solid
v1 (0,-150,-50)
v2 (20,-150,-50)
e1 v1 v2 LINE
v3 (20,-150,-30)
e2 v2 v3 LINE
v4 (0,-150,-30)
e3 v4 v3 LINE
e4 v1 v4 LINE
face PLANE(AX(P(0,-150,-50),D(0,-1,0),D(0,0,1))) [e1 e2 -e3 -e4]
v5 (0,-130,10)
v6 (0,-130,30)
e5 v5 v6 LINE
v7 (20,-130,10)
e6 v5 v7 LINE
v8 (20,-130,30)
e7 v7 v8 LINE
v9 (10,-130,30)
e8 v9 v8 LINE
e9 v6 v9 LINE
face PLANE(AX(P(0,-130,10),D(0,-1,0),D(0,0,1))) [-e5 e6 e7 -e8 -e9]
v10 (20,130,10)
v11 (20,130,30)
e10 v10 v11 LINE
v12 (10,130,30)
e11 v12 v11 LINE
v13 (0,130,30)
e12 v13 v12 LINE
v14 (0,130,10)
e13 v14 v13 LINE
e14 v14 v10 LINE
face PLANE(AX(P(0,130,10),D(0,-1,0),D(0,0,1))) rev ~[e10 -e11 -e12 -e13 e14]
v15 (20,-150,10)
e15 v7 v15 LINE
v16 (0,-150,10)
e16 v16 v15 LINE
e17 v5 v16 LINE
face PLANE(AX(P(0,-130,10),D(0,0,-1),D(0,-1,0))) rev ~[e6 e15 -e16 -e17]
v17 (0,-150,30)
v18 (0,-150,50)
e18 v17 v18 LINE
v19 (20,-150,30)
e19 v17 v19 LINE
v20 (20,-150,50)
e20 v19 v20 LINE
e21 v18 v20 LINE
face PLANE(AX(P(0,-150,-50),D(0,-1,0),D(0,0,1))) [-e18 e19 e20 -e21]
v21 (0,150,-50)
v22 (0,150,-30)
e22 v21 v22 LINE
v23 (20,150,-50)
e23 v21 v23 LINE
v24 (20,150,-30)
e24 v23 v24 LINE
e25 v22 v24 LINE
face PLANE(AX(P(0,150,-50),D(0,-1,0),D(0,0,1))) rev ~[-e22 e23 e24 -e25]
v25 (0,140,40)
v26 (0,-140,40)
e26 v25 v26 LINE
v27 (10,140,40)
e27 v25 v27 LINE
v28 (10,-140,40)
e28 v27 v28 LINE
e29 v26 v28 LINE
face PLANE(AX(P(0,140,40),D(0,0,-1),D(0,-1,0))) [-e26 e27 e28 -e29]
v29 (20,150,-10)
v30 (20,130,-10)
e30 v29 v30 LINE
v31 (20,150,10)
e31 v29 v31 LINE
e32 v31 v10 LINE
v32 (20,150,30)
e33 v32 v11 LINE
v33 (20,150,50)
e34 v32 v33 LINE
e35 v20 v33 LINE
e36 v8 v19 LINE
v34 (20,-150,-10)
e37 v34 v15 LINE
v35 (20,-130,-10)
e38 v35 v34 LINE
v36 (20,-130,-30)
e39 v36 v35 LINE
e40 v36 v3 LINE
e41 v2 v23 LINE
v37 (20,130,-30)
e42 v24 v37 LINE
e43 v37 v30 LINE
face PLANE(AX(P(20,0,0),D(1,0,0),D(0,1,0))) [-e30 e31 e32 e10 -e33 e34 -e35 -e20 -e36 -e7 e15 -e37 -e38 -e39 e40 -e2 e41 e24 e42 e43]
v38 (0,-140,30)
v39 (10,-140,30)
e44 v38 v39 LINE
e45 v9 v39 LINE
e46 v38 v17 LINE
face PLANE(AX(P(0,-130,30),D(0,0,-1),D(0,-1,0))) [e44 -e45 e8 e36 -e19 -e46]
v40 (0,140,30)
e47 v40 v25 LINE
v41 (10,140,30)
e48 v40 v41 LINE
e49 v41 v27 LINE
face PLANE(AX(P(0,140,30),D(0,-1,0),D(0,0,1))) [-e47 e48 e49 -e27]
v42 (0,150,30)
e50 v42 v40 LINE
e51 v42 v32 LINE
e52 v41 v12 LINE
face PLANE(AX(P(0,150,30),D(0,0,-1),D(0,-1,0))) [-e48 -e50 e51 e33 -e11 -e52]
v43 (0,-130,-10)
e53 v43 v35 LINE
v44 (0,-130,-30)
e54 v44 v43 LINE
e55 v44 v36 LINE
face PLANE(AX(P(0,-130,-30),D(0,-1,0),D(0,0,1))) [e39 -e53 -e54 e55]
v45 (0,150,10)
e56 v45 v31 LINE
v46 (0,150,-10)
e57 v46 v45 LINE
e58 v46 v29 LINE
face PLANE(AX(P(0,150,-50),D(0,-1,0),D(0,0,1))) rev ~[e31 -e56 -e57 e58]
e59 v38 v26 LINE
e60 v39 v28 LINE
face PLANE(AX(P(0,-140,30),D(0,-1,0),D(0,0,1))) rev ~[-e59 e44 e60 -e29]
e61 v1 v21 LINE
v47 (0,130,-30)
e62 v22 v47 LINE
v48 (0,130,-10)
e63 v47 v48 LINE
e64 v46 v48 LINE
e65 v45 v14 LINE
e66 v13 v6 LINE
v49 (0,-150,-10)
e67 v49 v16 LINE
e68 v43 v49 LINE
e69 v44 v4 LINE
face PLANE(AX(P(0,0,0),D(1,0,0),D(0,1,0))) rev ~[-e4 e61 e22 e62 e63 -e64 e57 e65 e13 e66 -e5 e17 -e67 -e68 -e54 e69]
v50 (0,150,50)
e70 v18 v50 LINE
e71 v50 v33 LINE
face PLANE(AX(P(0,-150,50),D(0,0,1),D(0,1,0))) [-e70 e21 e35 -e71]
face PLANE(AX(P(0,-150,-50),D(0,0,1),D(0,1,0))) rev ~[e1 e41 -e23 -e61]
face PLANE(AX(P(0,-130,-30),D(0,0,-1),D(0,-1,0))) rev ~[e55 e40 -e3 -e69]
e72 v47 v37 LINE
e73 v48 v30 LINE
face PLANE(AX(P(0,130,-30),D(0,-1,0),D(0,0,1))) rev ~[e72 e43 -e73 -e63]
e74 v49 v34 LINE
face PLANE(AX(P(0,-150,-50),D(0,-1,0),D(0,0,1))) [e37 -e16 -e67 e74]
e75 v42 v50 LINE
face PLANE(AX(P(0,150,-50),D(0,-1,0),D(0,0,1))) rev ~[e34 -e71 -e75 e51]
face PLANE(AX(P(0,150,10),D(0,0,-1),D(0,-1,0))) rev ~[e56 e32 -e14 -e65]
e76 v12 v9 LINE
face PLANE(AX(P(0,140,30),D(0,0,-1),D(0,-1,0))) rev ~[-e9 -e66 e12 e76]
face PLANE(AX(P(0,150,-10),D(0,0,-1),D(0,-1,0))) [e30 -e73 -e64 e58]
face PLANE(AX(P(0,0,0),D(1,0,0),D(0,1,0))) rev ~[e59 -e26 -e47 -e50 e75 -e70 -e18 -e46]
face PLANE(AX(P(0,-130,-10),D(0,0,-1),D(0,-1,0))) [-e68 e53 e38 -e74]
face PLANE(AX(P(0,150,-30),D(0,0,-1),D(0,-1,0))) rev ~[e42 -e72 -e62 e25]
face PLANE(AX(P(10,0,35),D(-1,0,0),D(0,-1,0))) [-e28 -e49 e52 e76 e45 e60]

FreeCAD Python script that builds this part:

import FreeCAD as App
import Part
import Sketcher
from FreeCAD import Vector
Q = App.Units.Quantity

doc = App.newDocument("Part")
body = doc.addObject("PartDesign::Body", "Body")

# Sketch on YZ plane
sketch1 = body.newObject("Sketcher::SketchObject", "Sketch")
sketch1.AttachmentSupport = (doc.getObject("YZ_Plane"), [""])
sketch1.MapMode = "FlatFace"
sketch1.addGeometry([
    Part.LineSegment(Vector(-150, 50, 0), Vector(-150, -50, 0)),
    Part.LineSegment(Vector(-150, -50, 0), Vector(150, -50, 0)),
    Part.LineSegment(Vector(150, -50, 0), Vector(150, 50, 0)),
    Part.LineSegment(Vector(150, 50, 0), Vector(-150, 50, 0)),
], False)
sketch1.addConstraint([
    Sketcher.Constraint("Coincident", 0, 2, 1, 1),
    Sketcher.Constraint("Coincident", 1, 2, 2, 1),
    Sketcher.Constraint("Coincident", 2, 2, 3, 1),
    Sketcher.Constraint("Coincident", 3, 2, 0, 1),
    Sketcher.Constraint("Vertical", 0),
    Sketcher.Constraint("Horizontal", 1),
    Sketcher.Constraint("Vertical", 2),
    Sketcher.Constraint("Horizontal", 3),
    Sketcher.Constraint("Symmetric", 0, 2, 2, 2, -1, 1),
    Sketcher.Constraint("DistanceX", 1, 1, 1, 2, Q("300 mm")),
    Sketcher.Constraint("DistanceY", 0, 2, 0, 1, Q("100 mm")),
])
pad1 = body.newObject("PartDesign::Pad", "Pad")
pad1.Profile = sketch1
pad1.Length = 20

# Sketch on YZ plane
sketch2 = body.newObject("Sketcher::SketchObject", "Sketch001")
sketch2.AttachmentSupport = (doc.getObject("YZ_Plane"), [""])
sketch2.MapMode = "FlatFace"
sketch2.addGeometry([
    Part.LineSegment(Vector(-130, -10, 0), Vector(-130, -30, 0)),  # 0
    Part.LineSegment(Vector(-130, -30, 0), Vector(-150, -30, 0)),  # 1
    Part.LineSegment(Vector(-150, -30, 0), Vector(-150, -10, 0)),  # 2
    Part.LineSegment(Vector(-150, -10, 0), Vector(-130, -10, 0)),  # 3
    Part.LineSegment(Vector(150, -10, 0), Vector(150, -30, 0)),  # 4
    Part.LineSegment(Vector(150, -30, 0), Vector(130, -30, 0)),  # 5
    Part.LineSegment(Vector(130, -30, 0), Vector(130, -10, 0)),  # 6
    Part.LineSegment(Vector(130, -10, 0), Vector(150, -10, 0)),  # 7
    Part.LineSegment(Vector(-130, 30, 0), Vector(-130, 10, 0)),  # 8
    Part.LineSegment(Vector(-130, 10, 0), Vector(-150, 10, 0)),  # 9
    Part.LineSegment(Vector(-150, 10, 0), Vector(-150, 30, 0)),  # 10
    Part.LineSegment(Vector(-150, 30, 0), Vector(-130, 30, 0)),  # 11
    Part.LineSegment(Vector(150, 30, 0), Vector(150, 10, 0)),  # 12
    Part.LineSegment(Vector(150, 10, 0), Vector(130, 10, 0)),  # 13
    Part.LineSegment(Vector(130, 10, 0), Vector(130, 30, 0)),  # 14
    Part.LineSegment(Vector(130, 30, 0), Vector(150, 30, 0)),  # 15
], False)
sketch2.addConstraint([
    Sketcher.Constraint("Coincident", 0, 2, 1, 1),
    Sketcher.Constraint("Coincident", 1, 2, 2, 1),
    Sketcher.Constraint("Coincident", 2, 2, 3, 1),
    Sketcher.Constraint("Coincident", 3, 2, 0, 1),
    Sketcher.Constraint("Coincident", 4, 2, 5, 1),
    Sketcher.Constraint("Coincident", 5, 2, 6, 1),
    Sketcher.Constraint("Coincident", 6, 2, 7, 1),
    Sketcher.Constraint("Coincident", 7, 2, 4, 1),
    Sketcher.Constraint("Coincident", 8, 2, 9, 1),
    Sketcher.Constraint("Coincident", 9, 2, 10, 1),
    Sketcher.Constraint("Coincident", 10, 2, 11, 1),
    Sketcher.Constraint("Coincident", 11, 2, 8, 1),
    Sketcher.Constraint("Coincident", 12, 2, 13, 1),
    Sketcher.Constraint("Coincident", 13, 2, 14, 1),
    Sketcher.Constraint("Coincident", 14, 2, 15, 1),
    Sketcher.Constraint("Coincident", 15, 2, 12, 1),
    Sketcher.Constraint("Vertical", 0),
    Sketcher.Constraint("Horizontal", 1),
    Sketcher.Constraint("Vertical", 2),
    Sketcher.Constraint("Horizontal", 3),
    Sketcher.Constraint("Vertical", 4),
    Sketcher.Constraint("Horizontal", 5),
    Sketcher.Constraint("Vertical", 6),
    Sketcher.Constraint("Horizontal", 7),
    Sketcher.Constraint("Vertical", 8),
    Sketcher.Constraint("Horizontal", 9),
    Sketcher.Constraint("Vertical", 10),
    Sketcher.Constraint("Horizontal", 11),
    Sketcher.Constraint("Vertical", 12),
    Sketcher.Constraint("Horizontal", 13),
    Sketcher.Constraint("Vertical", 14),
    Sketcher.Constraint("Horizontal", 15),
    Sketcher.Constraint("Symmetric", 6, 2, 8, 2, -1, 1),
    Sketcher.Constraint("Symmetric", 4, 2, 10, 2, -1, 1),
    Sketcher.Constraint("Symmetric", 2, 2, 12, 2, -1, 1),
    Sketcher.Constraint("Symmetric", 0, 2, 14, 2, -1, 1),
    Sketcher.Constraint("Symmetric", 1, 2, 4, 2, -2),
    Sketcher.Constraint("Symmetric", 3, 2, 6, 2, -2),
    Sketcher.Constraint("Equal", 15, 0),
    Sketcher.Constraint("DistanceX", 1, 2, 1, 1, Q("20 mm")),
    Sketcher.Constraint("DistanceX", 0, 2, -1, 1, Q("130 mm")),
    Sketcher.Constraint("DistanceY", 0, 2, -1, 1, Q("30 mm")),
])
pocket1 = body.newObject("PartDesign::Pocket", "Pocket")
pocket1.Profile = sketch2
pocket1.Type = "ThroughAll"
pocket1.Reversed = True

# Sketch on YZ plane
sketch3 = body.newObject("Sketcher::SketchObject", "Sketch002")
sketch3.AttachmentSupport = (doc.getObject("YZ_Plane"), [""])
sketch3.MapMode = "FlatFace"
sketch3.addGeometry([
    Part.LineSegment(Vector(140, 40, 0), Vector(140, 30, 0)),
    Part.LineSegment(Vector(140, 30, 0), Vector(-140, 30, 0)),
    Part.LineSegment(Vector(-140, 30, 0), Vector(-140, 40, 0)),
    Part.LineSegment(Vector(-140, 40, 0), Vector(140, 40, 0)),
], False)
sketch3.addConstraint([
    Sketcher.Constraint("Coincident", 0, 2, 1, 1),
    Sketcher.Constraint("Coincident", 1, 2, 2, 1),
    Sketcher.Constraint("Coincident", 2, 2, 3, 1),
    Sketcher.Constraint("Coincident", 3, 2, 0, 1),
    Sketcher.Constraint("Vertical", 0),
    Sketcher.Constraint("Horizontal", 1),
    Sketcher.Constraint("Vertical", 2),
    Sketcher.Constraint("Horizontal", 3),
    Sketcher.Constraint("DistanceX", 1, 2, 1, 1, Q("280 mm")),
    Sketcher.Constraint("DistanceY", 0, 2, 0, 1, Q("10 mm")),
    Sketcher.Constraint("DistanceX", -1, 1, 0, 2, Q("140 mm")),
    Sketcher.Constraint("DistanceY", -1, 1, 0, 2, Q("30 mm")),
])
pocket2 = body.newObject("PartDesign::Pocket", "Pocket001")
pocket2.Profile = sketch3
pocket2.Length = 10
pocket2.Reversed = True

doc.recompute()
